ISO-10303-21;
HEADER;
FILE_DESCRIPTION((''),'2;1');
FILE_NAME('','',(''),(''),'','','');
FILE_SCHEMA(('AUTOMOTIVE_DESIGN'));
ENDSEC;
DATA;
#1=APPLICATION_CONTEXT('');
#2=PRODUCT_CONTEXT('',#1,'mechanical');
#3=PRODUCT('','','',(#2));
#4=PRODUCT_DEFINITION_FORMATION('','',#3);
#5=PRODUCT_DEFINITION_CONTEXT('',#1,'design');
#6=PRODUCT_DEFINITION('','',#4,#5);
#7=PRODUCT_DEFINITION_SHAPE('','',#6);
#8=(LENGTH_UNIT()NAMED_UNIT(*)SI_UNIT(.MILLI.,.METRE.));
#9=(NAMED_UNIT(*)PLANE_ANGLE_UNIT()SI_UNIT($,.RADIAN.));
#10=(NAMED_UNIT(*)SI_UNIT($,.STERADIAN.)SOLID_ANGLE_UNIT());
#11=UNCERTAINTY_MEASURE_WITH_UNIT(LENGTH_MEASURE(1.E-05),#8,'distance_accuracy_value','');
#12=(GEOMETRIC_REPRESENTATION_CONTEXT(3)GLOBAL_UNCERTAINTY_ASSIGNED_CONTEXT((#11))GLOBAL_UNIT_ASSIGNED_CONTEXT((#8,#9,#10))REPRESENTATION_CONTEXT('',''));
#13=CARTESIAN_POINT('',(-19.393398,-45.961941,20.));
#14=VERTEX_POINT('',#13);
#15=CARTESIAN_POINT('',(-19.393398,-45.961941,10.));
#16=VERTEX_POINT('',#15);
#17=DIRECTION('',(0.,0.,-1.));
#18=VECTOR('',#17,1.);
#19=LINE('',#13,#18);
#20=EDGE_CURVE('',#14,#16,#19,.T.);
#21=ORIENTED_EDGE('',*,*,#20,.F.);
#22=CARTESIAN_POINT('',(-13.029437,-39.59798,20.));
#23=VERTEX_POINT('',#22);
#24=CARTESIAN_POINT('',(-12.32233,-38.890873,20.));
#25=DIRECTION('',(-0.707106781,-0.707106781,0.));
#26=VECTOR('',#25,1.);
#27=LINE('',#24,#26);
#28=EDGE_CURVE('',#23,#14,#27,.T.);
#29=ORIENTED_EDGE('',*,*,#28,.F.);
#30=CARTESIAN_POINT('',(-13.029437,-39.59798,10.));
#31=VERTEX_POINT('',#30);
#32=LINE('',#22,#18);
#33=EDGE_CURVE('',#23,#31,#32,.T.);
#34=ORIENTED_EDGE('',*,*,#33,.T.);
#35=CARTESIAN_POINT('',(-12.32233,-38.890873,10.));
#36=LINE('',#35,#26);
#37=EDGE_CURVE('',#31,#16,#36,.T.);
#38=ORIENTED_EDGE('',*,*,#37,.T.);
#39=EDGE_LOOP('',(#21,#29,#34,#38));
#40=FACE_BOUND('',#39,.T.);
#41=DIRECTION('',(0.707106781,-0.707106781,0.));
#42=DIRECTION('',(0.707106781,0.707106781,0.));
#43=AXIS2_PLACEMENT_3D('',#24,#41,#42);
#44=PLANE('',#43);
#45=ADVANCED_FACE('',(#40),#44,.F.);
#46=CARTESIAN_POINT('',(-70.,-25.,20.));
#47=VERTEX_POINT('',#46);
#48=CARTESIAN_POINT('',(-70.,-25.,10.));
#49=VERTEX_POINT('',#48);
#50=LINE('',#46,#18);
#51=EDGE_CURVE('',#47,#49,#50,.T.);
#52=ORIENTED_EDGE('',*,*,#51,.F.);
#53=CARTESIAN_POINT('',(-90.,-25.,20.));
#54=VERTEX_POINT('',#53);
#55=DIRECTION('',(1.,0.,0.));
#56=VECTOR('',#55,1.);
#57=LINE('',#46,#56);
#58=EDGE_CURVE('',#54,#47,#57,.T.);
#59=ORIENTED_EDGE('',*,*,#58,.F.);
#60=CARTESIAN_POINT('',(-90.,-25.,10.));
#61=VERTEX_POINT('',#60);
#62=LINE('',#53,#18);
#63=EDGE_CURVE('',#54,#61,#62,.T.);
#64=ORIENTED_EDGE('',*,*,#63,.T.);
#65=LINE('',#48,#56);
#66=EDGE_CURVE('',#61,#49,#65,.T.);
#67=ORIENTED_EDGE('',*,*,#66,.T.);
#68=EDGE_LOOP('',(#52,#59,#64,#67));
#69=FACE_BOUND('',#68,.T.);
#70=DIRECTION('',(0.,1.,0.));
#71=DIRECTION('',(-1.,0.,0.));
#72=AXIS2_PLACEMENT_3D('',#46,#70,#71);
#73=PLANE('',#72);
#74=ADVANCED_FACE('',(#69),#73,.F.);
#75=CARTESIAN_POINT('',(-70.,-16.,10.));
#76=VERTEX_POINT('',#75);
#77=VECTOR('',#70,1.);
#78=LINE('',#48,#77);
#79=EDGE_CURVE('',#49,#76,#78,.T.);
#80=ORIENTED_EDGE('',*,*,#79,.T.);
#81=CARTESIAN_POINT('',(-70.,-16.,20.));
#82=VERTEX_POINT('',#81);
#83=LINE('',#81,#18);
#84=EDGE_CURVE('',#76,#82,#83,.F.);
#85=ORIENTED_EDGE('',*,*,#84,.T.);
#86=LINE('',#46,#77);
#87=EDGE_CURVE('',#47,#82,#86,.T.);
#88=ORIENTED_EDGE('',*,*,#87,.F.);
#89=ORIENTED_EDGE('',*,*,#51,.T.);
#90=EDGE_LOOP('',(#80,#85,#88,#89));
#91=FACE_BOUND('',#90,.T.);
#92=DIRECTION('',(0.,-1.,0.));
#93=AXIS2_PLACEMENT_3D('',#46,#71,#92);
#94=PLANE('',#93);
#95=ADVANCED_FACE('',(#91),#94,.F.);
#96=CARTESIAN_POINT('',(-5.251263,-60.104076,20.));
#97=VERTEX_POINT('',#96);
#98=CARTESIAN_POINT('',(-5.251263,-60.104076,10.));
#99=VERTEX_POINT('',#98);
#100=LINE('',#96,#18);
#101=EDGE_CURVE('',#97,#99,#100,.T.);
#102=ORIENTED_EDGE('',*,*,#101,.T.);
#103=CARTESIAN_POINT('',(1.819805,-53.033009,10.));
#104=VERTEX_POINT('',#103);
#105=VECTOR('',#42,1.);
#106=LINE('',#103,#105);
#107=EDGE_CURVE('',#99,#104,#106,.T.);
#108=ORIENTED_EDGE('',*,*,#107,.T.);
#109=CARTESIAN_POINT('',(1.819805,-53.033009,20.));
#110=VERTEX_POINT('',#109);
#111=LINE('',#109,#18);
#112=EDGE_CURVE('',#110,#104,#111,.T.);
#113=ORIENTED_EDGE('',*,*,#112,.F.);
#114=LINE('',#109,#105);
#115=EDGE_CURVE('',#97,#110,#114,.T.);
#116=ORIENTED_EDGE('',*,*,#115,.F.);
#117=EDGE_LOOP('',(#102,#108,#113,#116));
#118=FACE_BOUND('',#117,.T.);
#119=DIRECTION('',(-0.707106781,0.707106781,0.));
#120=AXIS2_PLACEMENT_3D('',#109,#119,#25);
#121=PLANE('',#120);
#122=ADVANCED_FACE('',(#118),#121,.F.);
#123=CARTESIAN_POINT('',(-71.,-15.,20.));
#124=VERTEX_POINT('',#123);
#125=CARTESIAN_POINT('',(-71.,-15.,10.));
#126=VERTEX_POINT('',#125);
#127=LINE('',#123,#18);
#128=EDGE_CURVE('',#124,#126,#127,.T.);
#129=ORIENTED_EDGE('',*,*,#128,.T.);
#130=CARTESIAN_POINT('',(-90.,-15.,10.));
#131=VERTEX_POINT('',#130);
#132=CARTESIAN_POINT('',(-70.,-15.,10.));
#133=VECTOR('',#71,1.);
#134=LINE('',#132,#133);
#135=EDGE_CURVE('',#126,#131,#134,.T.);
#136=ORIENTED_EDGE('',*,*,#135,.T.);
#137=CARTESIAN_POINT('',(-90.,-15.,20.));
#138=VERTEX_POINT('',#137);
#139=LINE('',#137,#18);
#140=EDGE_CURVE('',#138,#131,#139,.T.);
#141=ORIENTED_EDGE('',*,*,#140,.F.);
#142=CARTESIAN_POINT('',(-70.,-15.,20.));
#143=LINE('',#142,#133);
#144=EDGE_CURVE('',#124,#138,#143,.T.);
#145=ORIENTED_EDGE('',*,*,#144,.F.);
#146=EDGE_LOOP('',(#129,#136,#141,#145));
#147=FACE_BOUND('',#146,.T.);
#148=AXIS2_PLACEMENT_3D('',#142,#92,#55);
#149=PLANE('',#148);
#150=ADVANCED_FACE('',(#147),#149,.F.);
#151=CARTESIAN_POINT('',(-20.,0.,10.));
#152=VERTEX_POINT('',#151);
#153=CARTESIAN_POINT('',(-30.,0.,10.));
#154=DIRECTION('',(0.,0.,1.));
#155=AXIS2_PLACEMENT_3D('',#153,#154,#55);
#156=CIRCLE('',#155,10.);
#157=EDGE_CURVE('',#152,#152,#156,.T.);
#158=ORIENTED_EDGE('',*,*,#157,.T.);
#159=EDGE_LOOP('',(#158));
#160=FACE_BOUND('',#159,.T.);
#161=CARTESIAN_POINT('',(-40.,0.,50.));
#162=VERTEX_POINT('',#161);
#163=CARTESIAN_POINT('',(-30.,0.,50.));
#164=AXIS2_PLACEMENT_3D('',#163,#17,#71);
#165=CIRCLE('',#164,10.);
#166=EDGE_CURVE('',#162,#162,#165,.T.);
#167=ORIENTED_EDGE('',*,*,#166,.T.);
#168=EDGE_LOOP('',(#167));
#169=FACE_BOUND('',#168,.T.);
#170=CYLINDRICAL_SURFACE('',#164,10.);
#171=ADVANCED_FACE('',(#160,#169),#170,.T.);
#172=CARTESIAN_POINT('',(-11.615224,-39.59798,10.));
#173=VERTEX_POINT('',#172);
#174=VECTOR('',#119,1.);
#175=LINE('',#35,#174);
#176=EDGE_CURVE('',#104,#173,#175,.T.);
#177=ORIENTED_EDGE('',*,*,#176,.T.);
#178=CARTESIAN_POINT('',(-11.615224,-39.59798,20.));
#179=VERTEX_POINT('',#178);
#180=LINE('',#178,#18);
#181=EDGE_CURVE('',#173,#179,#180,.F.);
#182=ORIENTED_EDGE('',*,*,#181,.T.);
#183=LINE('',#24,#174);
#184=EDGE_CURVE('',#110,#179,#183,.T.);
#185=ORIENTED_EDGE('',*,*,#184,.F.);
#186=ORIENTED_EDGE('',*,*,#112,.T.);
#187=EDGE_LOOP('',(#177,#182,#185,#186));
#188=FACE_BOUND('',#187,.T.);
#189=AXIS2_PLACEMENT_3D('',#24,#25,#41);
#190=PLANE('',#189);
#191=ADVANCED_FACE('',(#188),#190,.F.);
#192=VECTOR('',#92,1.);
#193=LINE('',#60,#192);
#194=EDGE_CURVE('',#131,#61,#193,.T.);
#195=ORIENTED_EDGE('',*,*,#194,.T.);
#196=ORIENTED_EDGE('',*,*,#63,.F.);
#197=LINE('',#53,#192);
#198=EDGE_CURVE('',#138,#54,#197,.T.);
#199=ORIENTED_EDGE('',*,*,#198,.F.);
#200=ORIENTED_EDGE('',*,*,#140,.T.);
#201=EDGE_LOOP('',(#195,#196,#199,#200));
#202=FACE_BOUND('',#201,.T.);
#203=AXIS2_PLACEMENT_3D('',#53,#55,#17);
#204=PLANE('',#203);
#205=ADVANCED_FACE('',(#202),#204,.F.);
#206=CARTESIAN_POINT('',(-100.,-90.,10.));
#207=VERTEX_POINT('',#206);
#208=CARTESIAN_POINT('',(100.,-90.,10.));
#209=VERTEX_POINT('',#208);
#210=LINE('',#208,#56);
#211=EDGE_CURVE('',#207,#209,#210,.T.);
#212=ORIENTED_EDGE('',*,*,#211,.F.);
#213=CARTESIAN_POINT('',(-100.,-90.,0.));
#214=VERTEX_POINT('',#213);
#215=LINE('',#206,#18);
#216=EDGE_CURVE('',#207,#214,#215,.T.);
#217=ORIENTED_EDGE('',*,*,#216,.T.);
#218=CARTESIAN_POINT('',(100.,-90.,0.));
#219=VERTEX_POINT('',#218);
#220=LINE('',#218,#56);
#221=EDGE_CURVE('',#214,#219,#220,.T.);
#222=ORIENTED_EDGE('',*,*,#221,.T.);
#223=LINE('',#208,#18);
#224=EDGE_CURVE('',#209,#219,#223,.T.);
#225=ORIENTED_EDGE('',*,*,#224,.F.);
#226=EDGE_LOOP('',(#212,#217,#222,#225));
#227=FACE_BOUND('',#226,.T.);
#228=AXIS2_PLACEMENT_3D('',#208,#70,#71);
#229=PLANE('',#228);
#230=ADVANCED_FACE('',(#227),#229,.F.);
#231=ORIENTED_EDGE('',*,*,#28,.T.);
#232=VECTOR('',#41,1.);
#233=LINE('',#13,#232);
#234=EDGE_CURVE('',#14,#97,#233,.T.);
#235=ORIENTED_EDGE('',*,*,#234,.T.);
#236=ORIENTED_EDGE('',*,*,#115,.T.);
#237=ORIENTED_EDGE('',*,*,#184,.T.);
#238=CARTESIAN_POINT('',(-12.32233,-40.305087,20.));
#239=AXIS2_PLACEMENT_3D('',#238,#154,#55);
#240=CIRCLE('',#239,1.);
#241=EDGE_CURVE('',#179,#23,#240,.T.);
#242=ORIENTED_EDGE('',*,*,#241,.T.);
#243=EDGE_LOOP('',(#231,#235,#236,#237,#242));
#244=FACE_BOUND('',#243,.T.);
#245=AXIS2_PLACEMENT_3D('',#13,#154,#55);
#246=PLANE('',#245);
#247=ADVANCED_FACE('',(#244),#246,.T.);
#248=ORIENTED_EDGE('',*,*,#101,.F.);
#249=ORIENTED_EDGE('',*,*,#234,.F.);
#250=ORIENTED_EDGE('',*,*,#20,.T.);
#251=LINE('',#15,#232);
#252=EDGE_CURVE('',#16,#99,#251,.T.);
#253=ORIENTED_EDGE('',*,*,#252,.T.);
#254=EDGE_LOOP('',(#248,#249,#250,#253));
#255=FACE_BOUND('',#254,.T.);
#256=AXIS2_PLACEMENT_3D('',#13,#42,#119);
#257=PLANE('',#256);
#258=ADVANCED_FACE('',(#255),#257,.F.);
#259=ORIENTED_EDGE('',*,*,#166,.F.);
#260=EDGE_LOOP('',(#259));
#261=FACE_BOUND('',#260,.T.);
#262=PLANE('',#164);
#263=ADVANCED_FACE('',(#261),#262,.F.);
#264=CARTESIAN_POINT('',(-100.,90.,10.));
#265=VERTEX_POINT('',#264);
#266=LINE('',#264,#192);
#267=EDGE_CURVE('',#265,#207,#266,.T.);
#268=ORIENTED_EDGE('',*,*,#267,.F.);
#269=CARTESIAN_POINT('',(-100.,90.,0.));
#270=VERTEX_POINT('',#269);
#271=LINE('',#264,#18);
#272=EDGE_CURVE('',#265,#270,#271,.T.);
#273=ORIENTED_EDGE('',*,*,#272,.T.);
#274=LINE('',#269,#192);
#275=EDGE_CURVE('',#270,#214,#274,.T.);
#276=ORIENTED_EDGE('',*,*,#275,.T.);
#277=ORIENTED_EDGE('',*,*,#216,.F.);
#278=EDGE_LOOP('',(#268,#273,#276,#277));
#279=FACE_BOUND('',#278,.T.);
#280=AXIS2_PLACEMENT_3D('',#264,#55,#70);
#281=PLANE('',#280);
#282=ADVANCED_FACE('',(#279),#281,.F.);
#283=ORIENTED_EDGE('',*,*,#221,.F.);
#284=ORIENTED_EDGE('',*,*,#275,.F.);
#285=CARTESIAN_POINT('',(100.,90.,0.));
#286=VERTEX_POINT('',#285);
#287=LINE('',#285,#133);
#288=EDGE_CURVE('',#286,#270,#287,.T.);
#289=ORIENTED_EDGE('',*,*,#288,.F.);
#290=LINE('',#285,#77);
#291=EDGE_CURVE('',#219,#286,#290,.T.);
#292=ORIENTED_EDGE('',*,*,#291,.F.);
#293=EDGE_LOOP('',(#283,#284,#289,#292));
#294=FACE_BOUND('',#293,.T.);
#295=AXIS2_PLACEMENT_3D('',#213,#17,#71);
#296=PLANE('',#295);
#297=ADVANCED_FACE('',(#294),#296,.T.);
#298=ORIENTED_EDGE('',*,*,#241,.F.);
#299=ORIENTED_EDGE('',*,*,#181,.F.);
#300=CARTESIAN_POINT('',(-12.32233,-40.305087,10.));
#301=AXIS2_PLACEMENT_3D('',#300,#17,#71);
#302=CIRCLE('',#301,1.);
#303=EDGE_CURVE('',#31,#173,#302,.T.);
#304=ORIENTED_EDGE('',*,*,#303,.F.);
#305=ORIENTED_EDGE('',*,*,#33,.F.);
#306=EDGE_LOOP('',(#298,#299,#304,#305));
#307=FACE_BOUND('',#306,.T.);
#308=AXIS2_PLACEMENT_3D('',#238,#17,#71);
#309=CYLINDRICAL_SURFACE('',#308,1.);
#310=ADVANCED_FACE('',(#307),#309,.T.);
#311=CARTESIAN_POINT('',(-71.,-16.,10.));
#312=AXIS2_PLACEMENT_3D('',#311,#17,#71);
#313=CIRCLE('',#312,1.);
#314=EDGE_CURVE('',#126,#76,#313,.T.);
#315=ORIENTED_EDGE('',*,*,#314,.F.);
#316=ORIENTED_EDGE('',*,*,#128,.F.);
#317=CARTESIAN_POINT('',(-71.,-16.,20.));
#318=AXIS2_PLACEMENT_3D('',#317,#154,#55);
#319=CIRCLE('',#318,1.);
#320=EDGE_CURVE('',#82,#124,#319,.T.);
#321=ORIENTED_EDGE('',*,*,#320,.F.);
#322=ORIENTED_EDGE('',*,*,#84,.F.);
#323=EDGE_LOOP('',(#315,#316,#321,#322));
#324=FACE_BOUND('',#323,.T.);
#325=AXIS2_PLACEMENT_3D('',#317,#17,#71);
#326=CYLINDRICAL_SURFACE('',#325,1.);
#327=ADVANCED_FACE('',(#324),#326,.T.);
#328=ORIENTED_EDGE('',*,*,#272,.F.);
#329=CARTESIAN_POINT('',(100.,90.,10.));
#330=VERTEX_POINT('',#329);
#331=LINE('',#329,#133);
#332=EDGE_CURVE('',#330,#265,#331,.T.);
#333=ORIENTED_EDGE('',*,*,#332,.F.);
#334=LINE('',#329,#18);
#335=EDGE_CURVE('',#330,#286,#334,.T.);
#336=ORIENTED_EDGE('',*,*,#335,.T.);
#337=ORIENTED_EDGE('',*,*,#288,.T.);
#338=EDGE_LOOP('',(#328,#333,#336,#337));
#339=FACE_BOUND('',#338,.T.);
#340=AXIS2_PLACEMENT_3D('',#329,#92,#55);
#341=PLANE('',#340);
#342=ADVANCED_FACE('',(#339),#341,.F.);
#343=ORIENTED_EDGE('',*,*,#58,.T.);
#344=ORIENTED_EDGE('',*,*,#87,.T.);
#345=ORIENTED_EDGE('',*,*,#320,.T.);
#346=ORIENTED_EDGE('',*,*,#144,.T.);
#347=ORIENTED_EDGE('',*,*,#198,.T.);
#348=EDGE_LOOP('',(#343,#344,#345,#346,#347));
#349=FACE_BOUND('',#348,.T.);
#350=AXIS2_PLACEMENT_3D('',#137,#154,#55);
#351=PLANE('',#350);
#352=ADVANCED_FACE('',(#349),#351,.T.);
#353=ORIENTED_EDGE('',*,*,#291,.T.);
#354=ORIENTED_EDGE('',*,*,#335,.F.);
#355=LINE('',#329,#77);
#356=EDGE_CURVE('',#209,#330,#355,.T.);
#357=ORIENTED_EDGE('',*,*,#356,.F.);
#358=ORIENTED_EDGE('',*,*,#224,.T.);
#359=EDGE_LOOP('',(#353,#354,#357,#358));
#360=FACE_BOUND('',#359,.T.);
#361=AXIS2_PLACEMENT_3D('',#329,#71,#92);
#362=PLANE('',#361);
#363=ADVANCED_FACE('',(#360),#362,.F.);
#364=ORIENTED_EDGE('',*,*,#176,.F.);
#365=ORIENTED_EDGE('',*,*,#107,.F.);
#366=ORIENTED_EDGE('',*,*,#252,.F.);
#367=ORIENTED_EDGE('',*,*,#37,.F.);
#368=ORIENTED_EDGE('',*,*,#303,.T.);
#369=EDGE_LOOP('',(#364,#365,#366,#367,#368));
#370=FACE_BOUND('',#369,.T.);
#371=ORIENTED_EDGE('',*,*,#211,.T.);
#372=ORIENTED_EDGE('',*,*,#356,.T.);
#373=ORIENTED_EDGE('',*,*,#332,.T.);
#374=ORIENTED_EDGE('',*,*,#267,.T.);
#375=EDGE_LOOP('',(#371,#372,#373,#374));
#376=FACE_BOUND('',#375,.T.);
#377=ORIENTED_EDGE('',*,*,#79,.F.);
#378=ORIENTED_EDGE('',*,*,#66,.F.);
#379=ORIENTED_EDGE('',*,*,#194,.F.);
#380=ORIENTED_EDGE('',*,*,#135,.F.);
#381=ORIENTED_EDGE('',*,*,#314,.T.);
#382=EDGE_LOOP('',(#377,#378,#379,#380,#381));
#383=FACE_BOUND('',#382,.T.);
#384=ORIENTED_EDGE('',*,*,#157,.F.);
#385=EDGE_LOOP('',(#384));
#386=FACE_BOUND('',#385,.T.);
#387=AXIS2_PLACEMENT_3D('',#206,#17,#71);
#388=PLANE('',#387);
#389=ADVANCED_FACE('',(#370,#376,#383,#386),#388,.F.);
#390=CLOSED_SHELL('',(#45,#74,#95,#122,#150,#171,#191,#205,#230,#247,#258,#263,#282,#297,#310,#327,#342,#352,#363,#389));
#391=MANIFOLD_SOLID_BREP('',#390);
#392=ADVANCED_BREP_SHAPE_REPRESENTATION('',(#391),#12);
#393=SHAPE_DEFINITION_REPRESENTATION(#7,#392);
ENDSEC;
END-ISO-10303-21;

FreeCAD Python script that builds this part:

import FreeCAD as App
import Part
import Sketcher

V = App.Vector
Q = App.Units.Quantity


def edges_at(feature, points):
    """Names of the edges that pass closest to the given points."""
    edges = feature.Shape.Edges
    near = lambda p: min(range(len(edges)), key=lambda i: edges[i].distToShape(Part.Vertex(*p))[0])
    return sorted({f"Edge{near(p) + 1}" for p in points})

doc = App.newDocument("Part")
body = doc.addObject("PartDesign::Body", "Body")

# Sketch on XY plane
sketch1 = doc.addObject("Sketcher::SketchObject", "Sketch")
body.addObject(sketch1)
sketch1.AttachmentSupport = (doc.XY_Plane, [""])
sketch1.MapMode = "FlatFace"
sketch1.addGeometry([
    Part.LineSegment(V(-100, 90, 0), V(-100, -90, 0)),  # 0
    Part.LineSegment(V(-100, -90, 0), V(100, -90, 0)),  # 1
    Part.LineSegment(V(100, -90, 0), V(100, 90, 0)),  # 2
    Part.LineSegment(V(100, 90, 0), V(-100, 90, 0)),  # 3
    Part.Circle(V(-30, 0, 0), V(0, 0, 1), 10),  # 4
], False)
sketch1.addConstraint([
    Sketcher.Constraint("Coincident", 0, 2, 1, 1),
    Sketcher.Constraint("Coincident", 1, 2, 2, 1),
    Sketcher.Constraint("Coincident", 2, 2, 3, 1),
    Sketcher.Constraint("Coincident", 3, 2, 0, 1),
    Sketcher.Constraint("Vertical", 0),
    Sketcher.Constraint("Horizontal", 1),
    Sketcher.Constraint("Vertical", 2),
    Sketcher.Constraint("Horizontal", 3),
    Sketcher.Constraint("Symmetric", 0, 2, 2, 2, -1, 1),
    Sketcher.Constraint("PointOnObject", 4, 3, -1),
    Sketcher.Constraint("Diameter", 4, 20.0),
    Sketcher.Constraint("DistanceX", 1, 1, 1, 2, 200.0),
    Sketcher.Constraint("DistanceY", 0, 2, 0, 1, 180.0),
    Sketcher.Constraint("DistanceX", 4, 3, -1, 1, 30.0),
])
pad1 = doc.addObject("PartDesign::Pad", "Pad")
body.addObject(pad1)
pad1.Profile = sketch1
pad1.Length = 10

# Sketch on XY plane
sketch2 = doc.addObject("Sketcher::SketchObject", "Sketch001")
body.addObject(sketch2)
sketch2.AttachmentSupport = (doc.XY_Plane, [""])
sketch2.MapMode = "FlatFace"
sketch2.addGeometry(Part.Circle(V(-30, 0, 0), V(0, 0, 1), 10), False)
sketch2.addConstraint([
    Sketcher.Constraint("PointOnObject", 0, 3, -1),
    Sketcher.Constraint("Diameter", 0, 20.0),
    Sketcher.Constraint("DistanceX", 0, 3, -1, 1, 30.0),
])
pad2 = doc.addObject("PartDesign::Pad", "Pad001")
body.addObject(pad2)
pad2.Profile = sketch2
pad2.Length = 50

# Sketch on XY plane
sketch3 = doc.addObject("Sketcher::SketchObject", "Sketch002")
body.addObject(sketch3)
sketch3.AttachmentSupport = (doc.XY_Plane, [""])
sketch3.MapMode = "FlatFace"
sketch3.AttachmentOffset = App.Placement(V(0, 0, 10), App.Rotation())
sketch3.addGeometry([
    Part.LineSegment(V(-90, -15, 0), V(-90, -25, 0)),  # 0
    Part.LineSegment(V(-90, -25, 0), V(-70, -25, 0)),  # 1
    Part.LineSegment(V(-70, -25, 0), V(-70, -15, 0)),  # 2
    Part.LineSegment(V(-70, -15, 0), V(-90, -15, 0)),  # 3
    Part.LineSegment(V(1.819805, -53.033009, 0), V(-12.32233, -38.890873, 0)),  # 4
    Part.LineSegment(V(-12.32233, -38.890873, 0), V(-19.393398, -45.961941, 0)),  # 5
    Part.LineSegment(V(-19.393398, -45.961941, 0), V(-5.251263, -60.104076, 0)),  # 6
    Part.LineSegment(V(-5.251263, -60.104076, 0), V(1.819805, -53.033009, 0)),  # 7
], False)
sketch3.addConstraint([
    Sketcher.Constraint("Coincident", 0, 2, 1, 1),
    Sketcher.Constraint("Coincident", 1, 2, 2, 1),
    Sketcher.Constraint("Coincident", 2, 2, 3, 1),
    Sketcher.Constraint("Coincident", 3, 2, 0, 1),
    Sketcher.Constraint("Coincident", 4, 2, 5, 1),
    Sketcher.Constraint("Coincident", 5, 2, 6, 1),
    Sketcher.Constraint("Coincident", 6, 2, 7, 1),
    Sketcher.Constraint("Coincident", 7, 2, 4, 1),
    Sketcher.Constraint("Vertical", 0),
    Sketcher.Constraint("Horizontal", 1),
    Sketcher.Constraint("Vertical", 2),
    Sketcher.Constraint("Horizontal", 3),
    Sketcher.Constraint("Perpendicular", 4, 5),
    Sketcher.Constraint("Perpendicular", 5, 6),
    Sketcher.Constraint("Perpendicular", 6, 7),
    Sketcher.Constraint("DistanceX", 1, 1, 1, 2, 20.0),
    Sketcher.Constraint("DistanceY", 0, 2, 0, 1, 10.0),
    Sketcher.Constraint("Angle", 4, Q("135 deg")),
    Sketcher.Constraint("Distance", 4, 20.0),
    Sketcher.Constraint("Distance", 5, 10.0),
    Sketcher.Constraint("DistanceX", 0, 2, -1, 1, 90.0),
    Sketcher.Constraint("DistanceY", 0, 2, -1, 1, 25.0),
    Sketcher.Constraint("DistanceX", 5, 2, -1, 1, 19.393398),
    Sketcher.Constraint("DistanceY", 5, 2, -1, 1, 45.961941),
])
pad3 = doc.addObject("PartDesign::Pad", "Pad002")
body.addObject(pad3)
pad3.Profile = sketch3
pad3.Length = 10
doc.recompute()

fillet = doc.addObject("PartDesign::Fillet", "Fillet")
body.addObject(fillet)
fillet.Base = (pad3, edges_at(pad3, [(-70, -15, 15), (-12.322, -38.891, 15)]))
fillet.Radius = 1

doc.recompute()
